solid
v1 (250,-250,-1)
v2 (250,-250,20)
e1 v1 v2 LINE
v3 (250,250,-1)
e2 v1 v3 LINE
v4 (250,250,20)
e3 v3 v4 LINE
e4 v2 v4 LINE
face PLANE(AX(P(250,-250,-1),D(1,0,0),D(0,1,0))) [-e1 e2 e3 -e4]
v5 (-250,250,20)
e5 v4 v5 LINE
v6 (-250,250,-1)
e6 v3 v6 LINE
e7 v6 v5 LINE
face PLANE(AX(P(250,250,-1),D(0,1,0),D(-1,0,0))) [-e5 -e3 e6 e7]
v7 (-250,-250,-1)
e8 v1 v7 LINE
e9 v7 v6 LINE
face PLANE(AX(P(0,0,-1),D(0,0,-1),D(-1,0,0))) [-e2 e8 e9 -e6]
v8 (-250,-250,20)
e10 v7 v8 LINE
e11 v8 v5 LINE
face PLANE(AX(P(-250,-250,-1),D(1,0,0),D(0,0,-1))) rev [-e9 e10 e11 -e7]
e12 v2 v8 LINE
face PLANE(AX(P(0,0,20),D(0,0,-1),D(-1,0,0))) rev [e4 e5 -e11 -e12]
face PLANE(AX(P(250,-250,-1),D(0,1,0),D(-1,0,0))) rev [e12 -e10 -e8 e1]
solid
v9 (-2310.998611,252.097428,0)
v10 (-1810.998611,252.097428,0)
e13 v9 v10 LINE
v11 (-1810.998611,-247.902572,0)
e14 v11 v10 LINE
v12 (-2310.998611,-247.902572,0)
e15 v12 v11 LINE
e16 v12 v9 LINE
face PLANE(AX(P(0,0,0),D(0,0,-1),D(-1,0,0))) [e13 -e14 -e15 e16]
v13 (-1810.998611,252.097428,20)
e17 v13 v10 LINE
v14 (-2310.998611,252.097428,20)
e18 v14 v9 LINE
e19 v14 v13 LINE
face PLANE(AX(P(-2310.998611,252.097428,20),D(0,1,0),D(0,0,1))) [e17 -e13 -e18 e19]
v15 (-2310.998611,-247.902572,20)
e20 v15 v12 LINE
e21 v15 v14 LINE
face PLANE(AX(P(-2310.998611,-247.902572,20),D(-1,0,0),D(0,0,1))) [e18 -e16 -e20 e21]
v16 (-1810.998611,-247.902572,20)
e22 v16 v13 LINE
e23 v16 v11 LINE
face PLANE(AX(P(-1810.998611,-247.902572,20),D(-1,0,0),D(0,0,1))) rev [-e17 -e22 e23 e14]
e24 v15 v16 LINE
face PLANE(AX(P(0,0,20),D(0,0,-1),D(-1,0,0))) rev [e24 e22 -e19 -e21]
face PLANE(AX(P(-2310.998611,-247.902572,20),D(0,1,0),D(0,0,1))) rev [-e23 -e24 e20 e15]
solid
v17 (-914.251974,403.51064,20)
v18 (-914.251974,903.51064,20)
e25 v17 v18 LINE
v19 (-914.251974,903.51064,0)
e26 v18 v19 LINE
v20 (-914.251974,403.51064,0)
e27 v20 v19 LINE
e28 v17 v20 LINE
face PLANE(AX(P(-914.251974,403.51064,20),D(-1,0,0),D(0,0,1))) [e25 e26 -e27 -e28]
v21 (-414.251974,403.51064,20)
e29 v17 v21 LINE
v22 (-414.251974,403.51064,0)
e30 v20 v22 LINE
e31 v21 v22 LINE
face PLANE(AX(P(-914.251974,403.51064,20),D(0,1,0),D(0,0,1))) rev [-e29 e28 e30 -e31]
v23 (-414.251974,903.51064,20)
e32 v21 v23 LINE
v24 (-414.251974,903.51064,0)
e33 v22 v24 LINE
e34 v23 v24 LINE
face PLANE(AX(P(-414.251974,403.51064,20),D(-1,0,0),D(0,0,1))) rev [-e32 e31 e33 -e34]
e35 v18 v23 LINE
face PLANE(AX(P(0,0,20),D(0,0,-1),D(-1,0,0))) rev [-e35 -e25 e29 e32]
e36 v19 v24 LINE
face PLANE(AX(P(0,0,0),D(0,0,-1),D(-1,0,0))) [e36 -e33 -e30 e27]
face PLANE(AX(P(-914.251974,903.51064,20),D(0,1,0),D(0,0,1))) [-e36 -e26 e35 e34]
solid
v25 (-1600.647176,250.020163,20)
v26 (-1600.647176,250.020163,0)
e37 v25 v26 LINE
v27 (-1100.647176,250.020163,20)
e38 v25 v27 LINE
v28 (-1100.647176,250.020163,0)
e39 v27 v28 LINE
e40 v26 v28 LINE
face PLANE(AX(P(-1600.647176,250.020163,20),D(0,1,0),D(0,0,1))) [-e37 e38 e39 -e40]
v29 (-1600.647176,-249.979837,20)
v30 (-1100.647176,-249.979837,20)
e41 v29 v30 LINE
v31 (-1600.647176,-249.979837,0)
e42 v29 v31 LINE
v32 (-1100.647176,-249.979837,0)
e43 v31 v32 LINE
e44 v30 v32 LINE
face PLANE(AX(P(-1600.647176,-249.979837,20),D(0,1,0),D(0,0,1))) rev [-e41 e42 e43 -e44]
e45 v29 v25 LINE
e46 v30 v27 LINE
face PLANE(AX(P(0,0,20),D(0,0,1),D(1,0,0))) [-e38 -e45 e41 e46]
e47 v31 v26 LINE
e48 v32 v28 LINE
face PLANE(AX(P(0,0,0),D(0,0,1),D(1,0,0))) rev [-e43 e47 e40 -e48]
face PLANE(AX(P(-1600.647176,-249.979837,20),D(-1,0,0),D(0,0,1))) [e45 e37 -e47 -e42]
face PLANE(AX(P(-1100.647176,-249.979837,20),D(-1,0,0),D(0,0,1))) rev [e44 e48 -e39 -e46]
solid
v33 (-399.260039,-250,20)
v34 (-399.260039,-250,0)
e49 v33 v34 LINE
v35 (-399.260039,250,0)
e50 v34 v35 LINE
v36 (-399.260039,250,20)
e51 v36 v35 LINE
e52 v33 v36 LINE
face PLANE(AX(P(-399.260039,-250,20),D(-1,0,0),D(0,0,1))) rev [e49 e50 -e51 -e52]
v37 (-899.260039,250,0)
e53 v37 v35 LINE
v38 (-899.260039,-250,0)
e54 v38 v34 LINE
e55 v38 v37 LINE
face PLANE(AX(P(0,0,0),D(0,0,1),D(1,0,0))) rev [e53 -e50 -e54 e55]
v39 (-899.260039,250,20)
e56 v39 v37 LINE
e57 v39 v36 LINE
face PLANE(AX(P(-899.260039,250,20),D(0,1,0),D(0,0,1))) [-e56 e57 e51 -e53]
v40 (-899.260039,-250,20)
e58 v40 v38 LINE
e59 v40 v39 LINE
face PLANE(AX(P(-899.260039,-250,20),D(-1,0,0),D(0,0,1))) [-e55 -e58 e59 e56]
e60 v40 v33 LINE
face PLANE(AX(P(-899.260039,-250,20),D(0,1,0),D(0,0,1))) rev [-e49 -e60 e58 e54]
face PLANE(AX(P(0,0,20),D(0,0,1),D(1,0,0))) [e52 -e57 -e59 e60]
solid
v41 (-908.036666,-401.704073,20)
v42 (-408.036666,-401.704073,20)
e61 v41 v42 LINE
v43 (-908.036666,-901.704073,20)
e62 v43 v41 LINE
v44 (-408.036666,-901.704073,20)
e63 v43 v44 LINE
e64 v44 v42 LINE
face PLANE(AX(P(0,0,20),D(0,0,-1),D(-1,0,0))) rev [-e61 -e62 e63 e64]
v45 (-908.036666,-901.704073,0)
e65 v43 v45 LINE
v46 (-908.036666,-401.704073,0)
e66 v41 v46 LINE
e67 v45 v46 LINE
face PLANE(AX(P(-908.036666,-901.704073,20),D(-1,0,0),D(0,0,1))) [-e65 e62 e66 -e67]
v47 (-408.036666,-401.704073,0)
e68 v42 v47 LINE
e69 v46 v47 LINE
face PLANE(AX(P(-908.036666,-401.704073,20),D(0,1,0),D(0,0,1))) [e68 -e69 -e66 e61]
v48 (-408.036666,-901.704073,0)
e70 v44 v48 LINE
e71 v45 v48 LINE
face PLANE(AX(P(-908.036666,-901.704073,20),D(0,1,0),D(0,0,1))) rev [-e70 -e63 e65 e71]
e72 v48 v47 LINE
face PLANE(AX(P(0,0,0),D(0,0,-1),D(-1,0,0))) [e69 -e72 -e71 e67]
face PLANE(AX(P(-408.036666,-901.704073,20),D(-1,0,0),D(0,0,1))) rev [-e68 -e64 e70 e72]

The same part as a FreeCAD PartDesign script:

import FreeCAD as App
import Part
import Sketcher
from FreeCAD import Vector


def add_polygon(sketch, points):
    """Adds a closed chain of lines whose ends are joined by coincident constraints."""
    first, n = sketch.GeometryCount, len(points)
    for a, b in zip(points, points[1:] + points[:1]):
        sketch.addGeometry(Part.LineSegment(App.Vector(*a, 0), App.Vector(*b, 0)), False)
    for i in range(n):
        sketch.addConstraint(Sketcher.Constraint("Coincident", first + i, 2, first + (i + 1) % n, 1))

doc = App.newDocument("Part")
body = doc.addObject("PartDesign::Body", "Body")

# Sketch on XY plane
sketch1 = body.newObject("Sketcher::SketchObject", "Sketch")
sketch1.AttachmentSupport = (doc.getObject("XY_Plane"), [""])
sketch1.MapMode = "FlatFace"
add_polygon(sketch1, [(-250, 250), (-250, -250), (250, -250), (250, 250)])  # lines 0-3
sketch1.addConstraint(Sketcher.Constraint("Vertical", 0))
sketch1.addConstraint(Sketcher.Constraint("Horizontal", 1))
sketch1.addConstraint(Sketcher.Constraint("Vertical", 2))
sketch1.addConstraint(Sketcher.Constraint("Horizontal", 3))
sketch1.addConstraint(Sketcher.Constraint("Symmetric", 0, 2, 2, 2, -1, 1))
sketch1.addConstraint(Sketcher.Constraint("Equal", 3, 0))
sketch1.addConstraint(Sketcher.Constraint("DistanceX", 1, 1, 1, 2, 500.0))
pad1 = body.newObject("PartDesign::Pad", "Pad")
pad1.Profile = sketch1
pad1.Type = "TwoLengths"
pad1.Length = 20
pad1.Length2 = 1
body2 = doc.addObject("PartDesign::Body", "Body001")

# Sketch on XY plane
sketch2 = body2.newObject("Sketcher::SketchObject", "Sketch001")
sketch2.AttachmentSupport = (doc.getObject("XY_Plane001"), [""])
sketch2.MapMode = "FlatFace"
add_polygon(sketch2, [(-899, 250), (-899, -250), (-399, -250), (-399, 250)])  # lines 0-3
sketch2.addConstraint(Sketcher.Constraint("Vertical", 0))
sketch2.addConstraint(Sketcher.Constraint("Horizontal", 1))
sketch2.addConstraint(Sketcher.Constraint("Vertical", 2))
sketch2.addConstraint(Sketcher.Constraint("Horizontal", 3))
sketch2.addConstraint(Sketcher.Constraint("Equal", 3, 0))
sketch2.addConstraint(Sketcher.Constraint("DistanceX", 1, 1, 1, 2, 500.0))
sketch2.addConstraint(Sketcher.Constraint("DistanceY", 0, 2, -1, 1, 250.0))
sketch2.addConstraint(Sketcher.Constraint("DistanceX", 0, 2, -1, 1, 899.260039))
pad2 = body2.newObject("PartDesign::Pad", "Pad001")
pad2.Profile = sketch2
pad2.Length = 20
body3 = doc.addObject("PartDesign::Body", "Body002")

# Sketch on XY plane
sketch3 = body3.newObject("Sketcher::SketchObject", "Sketch002")
sketch3.AttachmentSupport = (doc.getObject("XY_Plane002"), [""])
sketch3.MapMode = "FlatFace"
add_polygon(sketch3, [(-2311, 252), (-2311, -248), (-1811, -248), (-1811, 252)])  # lines 0-3
sketch3.addConstraint(Sketcher.Constraint("Vertical", 0))
sketch3.addConstraint(Sketcher.Constraint("Horizontal", 1))
sketch3.addConstraint(Sketcher.Constraint("Vertical", 2))
sketch3.addConstraint(Sketcher.Constraint("Horizontal", 3))
sketch3.addConstraint(Sketcher.Constraint("Equal", 3, 0))
sketch3.addConstraint(Sketcher.Constraint("DistanceX", 1, 1, 1, 2, 500.0))
sketch3.addConstraint(Sketcher.Constraint("DistanceX", 0, 2, -1, 1, 2310.998611))
sketch3.addConstraint(Sketcher.Constraint("DistanceY", 0, 2, -1, 1, 247.902572))
pad3 = body3.newObject("PartDesign::Pad", "Pad002")
pad3.Profile = sketch3
pad3.Length = 20
body4 = doc.addObject("PartDesign::Body", "Body003")

# Sketch on XY plane
sketch4 = body4.newObject("Sketcher::SketchObject", "Sketch003")
sketch4.AttachmentSupport = (doc.getObject("XY_Plane003"), [""])
sketch4.MapMode = "FlatFace"
add_polygon(sketch4, [(-1601, 250), (-1601, -250), (-1101, -250), (-1101, 250)])  # lines 0-3
sketch4.addConstraint(Sketcher.Constraint("Vertical", 0))
sketch4.addConstraint(Sketcher.Constraint("Horizontal", 1))
sketch4.addConstraint(Sketcher.Constraint("Vertical", 2))
sketch4.addConstraint(Sketcher.Constraint("Horizontal", 3))
sketch4.addConstraint(Sketcher.Constraint("Equal", 3, 0))
sketch4.addConstraint(Sketcher.Constraint("DistanceX", 1, 1, 1, 2, 500.0))
sketch4.addConstraint(Sketcher.Constraint("DistanceX", 0, 2, -1, 1, 1600.647176))
sketch4.addConstraint(Sketcher.Constraint("DistanceY", 0, 2, -1, 1, 249.979837))
pad4 = body4.newObject("PartDesign::Pad", "Pad003")
pad4.Profile = sketch4
pad4.Length = 20
body5 = doc.addObject("PartDesign::Body", "Body004")

# Sketch on XY plane
sketch5 = body5.newObject("Sketcher::SketchObject", "Sketch004")
sketch5.AttachmentSupport = (doc.getObject("XY_Plane004"), [""])
sketch5.MapMode = "FlatFace"
add_polygon(sketch5, [(-914, 904), (-914, 404), (-414, 404), (-414, 904)])  # lines 0-3
sketch5.addConstraint(Sketcher.Constraint("Vertical", 0))
sketch5.addConstraint(Sketcher.Constraint("Horizontal", 1))
sketch5.addConstraint(Sketcher.Constraint("Vertical", 2))
sketch5.addConstraint(Sketcher.Constraint("Horizontal", 3))
sketch5.addConstraint(Sketcher.Constraint("Equal", 3, 0))
sketch5.addConstraint(Sketcher.Constraint("DistanceX", 1, 1, 1, 2, 500.0))
sketch5.addConstraint(Sketcher.Constraint("DistanceY", -1, 1, 0, 2, 403.51064))
sketch5.addConstraint(Sketcher.Constraint("DistanceX", 0, 2, -1, 1, 914.251974))
pad5 = body5.newObject("PartDesign::Pad", "Pad004")
pad5.Profile = sketch5
pad5.Length = 20
body6 = doc.addObject("PartDesign::Body", "Body005")

# Sketch on XY plane
sketch6 = body6.newObject("Sketcher::SketchObject", "Sketch005")
sketch6.AttachmentSupport = (doc.getObject("XY_Plane005"), [""])
sketch6.MapMode = "FlatFace"
add_polygon(sketch6, [(-908, -402), (-908, -902), (-408, -902), (-408, -402)])  # lines 0-3
sketch6.addConstraint(Sketcher.Constraint("Vertical", 0))
sketch6.addConstraint(Sketcher.Constraint("Horizontal", 1))
sketch6.addConstraint(Sketcher.Constraint("Vertical", 2))
sketch6.addConstraint(Sketcher.Constraint("Horizontal", 3))
sketch6.addConstraint(Sketcher.Constraint("Equal", 3, 0))
sketch6.addConstraint(Sketcher.Constraint("DistanceX", 1, 1, 1, 2, 500.0))
sketch6.addConstraint(Sketcher.Constraint("DistanceX", 0, 2, -1, 1, 908.036666))
sketch6.addConstraint(Sketcher.Constraint("DistanceY", 0, 2, -1, 1, 901.704073))
pad6 = body6.newObject("PartDesign::Pad", "Pad005")
pad6.Profile = sketch6
pad6.Length = 20

doc.recompute()
